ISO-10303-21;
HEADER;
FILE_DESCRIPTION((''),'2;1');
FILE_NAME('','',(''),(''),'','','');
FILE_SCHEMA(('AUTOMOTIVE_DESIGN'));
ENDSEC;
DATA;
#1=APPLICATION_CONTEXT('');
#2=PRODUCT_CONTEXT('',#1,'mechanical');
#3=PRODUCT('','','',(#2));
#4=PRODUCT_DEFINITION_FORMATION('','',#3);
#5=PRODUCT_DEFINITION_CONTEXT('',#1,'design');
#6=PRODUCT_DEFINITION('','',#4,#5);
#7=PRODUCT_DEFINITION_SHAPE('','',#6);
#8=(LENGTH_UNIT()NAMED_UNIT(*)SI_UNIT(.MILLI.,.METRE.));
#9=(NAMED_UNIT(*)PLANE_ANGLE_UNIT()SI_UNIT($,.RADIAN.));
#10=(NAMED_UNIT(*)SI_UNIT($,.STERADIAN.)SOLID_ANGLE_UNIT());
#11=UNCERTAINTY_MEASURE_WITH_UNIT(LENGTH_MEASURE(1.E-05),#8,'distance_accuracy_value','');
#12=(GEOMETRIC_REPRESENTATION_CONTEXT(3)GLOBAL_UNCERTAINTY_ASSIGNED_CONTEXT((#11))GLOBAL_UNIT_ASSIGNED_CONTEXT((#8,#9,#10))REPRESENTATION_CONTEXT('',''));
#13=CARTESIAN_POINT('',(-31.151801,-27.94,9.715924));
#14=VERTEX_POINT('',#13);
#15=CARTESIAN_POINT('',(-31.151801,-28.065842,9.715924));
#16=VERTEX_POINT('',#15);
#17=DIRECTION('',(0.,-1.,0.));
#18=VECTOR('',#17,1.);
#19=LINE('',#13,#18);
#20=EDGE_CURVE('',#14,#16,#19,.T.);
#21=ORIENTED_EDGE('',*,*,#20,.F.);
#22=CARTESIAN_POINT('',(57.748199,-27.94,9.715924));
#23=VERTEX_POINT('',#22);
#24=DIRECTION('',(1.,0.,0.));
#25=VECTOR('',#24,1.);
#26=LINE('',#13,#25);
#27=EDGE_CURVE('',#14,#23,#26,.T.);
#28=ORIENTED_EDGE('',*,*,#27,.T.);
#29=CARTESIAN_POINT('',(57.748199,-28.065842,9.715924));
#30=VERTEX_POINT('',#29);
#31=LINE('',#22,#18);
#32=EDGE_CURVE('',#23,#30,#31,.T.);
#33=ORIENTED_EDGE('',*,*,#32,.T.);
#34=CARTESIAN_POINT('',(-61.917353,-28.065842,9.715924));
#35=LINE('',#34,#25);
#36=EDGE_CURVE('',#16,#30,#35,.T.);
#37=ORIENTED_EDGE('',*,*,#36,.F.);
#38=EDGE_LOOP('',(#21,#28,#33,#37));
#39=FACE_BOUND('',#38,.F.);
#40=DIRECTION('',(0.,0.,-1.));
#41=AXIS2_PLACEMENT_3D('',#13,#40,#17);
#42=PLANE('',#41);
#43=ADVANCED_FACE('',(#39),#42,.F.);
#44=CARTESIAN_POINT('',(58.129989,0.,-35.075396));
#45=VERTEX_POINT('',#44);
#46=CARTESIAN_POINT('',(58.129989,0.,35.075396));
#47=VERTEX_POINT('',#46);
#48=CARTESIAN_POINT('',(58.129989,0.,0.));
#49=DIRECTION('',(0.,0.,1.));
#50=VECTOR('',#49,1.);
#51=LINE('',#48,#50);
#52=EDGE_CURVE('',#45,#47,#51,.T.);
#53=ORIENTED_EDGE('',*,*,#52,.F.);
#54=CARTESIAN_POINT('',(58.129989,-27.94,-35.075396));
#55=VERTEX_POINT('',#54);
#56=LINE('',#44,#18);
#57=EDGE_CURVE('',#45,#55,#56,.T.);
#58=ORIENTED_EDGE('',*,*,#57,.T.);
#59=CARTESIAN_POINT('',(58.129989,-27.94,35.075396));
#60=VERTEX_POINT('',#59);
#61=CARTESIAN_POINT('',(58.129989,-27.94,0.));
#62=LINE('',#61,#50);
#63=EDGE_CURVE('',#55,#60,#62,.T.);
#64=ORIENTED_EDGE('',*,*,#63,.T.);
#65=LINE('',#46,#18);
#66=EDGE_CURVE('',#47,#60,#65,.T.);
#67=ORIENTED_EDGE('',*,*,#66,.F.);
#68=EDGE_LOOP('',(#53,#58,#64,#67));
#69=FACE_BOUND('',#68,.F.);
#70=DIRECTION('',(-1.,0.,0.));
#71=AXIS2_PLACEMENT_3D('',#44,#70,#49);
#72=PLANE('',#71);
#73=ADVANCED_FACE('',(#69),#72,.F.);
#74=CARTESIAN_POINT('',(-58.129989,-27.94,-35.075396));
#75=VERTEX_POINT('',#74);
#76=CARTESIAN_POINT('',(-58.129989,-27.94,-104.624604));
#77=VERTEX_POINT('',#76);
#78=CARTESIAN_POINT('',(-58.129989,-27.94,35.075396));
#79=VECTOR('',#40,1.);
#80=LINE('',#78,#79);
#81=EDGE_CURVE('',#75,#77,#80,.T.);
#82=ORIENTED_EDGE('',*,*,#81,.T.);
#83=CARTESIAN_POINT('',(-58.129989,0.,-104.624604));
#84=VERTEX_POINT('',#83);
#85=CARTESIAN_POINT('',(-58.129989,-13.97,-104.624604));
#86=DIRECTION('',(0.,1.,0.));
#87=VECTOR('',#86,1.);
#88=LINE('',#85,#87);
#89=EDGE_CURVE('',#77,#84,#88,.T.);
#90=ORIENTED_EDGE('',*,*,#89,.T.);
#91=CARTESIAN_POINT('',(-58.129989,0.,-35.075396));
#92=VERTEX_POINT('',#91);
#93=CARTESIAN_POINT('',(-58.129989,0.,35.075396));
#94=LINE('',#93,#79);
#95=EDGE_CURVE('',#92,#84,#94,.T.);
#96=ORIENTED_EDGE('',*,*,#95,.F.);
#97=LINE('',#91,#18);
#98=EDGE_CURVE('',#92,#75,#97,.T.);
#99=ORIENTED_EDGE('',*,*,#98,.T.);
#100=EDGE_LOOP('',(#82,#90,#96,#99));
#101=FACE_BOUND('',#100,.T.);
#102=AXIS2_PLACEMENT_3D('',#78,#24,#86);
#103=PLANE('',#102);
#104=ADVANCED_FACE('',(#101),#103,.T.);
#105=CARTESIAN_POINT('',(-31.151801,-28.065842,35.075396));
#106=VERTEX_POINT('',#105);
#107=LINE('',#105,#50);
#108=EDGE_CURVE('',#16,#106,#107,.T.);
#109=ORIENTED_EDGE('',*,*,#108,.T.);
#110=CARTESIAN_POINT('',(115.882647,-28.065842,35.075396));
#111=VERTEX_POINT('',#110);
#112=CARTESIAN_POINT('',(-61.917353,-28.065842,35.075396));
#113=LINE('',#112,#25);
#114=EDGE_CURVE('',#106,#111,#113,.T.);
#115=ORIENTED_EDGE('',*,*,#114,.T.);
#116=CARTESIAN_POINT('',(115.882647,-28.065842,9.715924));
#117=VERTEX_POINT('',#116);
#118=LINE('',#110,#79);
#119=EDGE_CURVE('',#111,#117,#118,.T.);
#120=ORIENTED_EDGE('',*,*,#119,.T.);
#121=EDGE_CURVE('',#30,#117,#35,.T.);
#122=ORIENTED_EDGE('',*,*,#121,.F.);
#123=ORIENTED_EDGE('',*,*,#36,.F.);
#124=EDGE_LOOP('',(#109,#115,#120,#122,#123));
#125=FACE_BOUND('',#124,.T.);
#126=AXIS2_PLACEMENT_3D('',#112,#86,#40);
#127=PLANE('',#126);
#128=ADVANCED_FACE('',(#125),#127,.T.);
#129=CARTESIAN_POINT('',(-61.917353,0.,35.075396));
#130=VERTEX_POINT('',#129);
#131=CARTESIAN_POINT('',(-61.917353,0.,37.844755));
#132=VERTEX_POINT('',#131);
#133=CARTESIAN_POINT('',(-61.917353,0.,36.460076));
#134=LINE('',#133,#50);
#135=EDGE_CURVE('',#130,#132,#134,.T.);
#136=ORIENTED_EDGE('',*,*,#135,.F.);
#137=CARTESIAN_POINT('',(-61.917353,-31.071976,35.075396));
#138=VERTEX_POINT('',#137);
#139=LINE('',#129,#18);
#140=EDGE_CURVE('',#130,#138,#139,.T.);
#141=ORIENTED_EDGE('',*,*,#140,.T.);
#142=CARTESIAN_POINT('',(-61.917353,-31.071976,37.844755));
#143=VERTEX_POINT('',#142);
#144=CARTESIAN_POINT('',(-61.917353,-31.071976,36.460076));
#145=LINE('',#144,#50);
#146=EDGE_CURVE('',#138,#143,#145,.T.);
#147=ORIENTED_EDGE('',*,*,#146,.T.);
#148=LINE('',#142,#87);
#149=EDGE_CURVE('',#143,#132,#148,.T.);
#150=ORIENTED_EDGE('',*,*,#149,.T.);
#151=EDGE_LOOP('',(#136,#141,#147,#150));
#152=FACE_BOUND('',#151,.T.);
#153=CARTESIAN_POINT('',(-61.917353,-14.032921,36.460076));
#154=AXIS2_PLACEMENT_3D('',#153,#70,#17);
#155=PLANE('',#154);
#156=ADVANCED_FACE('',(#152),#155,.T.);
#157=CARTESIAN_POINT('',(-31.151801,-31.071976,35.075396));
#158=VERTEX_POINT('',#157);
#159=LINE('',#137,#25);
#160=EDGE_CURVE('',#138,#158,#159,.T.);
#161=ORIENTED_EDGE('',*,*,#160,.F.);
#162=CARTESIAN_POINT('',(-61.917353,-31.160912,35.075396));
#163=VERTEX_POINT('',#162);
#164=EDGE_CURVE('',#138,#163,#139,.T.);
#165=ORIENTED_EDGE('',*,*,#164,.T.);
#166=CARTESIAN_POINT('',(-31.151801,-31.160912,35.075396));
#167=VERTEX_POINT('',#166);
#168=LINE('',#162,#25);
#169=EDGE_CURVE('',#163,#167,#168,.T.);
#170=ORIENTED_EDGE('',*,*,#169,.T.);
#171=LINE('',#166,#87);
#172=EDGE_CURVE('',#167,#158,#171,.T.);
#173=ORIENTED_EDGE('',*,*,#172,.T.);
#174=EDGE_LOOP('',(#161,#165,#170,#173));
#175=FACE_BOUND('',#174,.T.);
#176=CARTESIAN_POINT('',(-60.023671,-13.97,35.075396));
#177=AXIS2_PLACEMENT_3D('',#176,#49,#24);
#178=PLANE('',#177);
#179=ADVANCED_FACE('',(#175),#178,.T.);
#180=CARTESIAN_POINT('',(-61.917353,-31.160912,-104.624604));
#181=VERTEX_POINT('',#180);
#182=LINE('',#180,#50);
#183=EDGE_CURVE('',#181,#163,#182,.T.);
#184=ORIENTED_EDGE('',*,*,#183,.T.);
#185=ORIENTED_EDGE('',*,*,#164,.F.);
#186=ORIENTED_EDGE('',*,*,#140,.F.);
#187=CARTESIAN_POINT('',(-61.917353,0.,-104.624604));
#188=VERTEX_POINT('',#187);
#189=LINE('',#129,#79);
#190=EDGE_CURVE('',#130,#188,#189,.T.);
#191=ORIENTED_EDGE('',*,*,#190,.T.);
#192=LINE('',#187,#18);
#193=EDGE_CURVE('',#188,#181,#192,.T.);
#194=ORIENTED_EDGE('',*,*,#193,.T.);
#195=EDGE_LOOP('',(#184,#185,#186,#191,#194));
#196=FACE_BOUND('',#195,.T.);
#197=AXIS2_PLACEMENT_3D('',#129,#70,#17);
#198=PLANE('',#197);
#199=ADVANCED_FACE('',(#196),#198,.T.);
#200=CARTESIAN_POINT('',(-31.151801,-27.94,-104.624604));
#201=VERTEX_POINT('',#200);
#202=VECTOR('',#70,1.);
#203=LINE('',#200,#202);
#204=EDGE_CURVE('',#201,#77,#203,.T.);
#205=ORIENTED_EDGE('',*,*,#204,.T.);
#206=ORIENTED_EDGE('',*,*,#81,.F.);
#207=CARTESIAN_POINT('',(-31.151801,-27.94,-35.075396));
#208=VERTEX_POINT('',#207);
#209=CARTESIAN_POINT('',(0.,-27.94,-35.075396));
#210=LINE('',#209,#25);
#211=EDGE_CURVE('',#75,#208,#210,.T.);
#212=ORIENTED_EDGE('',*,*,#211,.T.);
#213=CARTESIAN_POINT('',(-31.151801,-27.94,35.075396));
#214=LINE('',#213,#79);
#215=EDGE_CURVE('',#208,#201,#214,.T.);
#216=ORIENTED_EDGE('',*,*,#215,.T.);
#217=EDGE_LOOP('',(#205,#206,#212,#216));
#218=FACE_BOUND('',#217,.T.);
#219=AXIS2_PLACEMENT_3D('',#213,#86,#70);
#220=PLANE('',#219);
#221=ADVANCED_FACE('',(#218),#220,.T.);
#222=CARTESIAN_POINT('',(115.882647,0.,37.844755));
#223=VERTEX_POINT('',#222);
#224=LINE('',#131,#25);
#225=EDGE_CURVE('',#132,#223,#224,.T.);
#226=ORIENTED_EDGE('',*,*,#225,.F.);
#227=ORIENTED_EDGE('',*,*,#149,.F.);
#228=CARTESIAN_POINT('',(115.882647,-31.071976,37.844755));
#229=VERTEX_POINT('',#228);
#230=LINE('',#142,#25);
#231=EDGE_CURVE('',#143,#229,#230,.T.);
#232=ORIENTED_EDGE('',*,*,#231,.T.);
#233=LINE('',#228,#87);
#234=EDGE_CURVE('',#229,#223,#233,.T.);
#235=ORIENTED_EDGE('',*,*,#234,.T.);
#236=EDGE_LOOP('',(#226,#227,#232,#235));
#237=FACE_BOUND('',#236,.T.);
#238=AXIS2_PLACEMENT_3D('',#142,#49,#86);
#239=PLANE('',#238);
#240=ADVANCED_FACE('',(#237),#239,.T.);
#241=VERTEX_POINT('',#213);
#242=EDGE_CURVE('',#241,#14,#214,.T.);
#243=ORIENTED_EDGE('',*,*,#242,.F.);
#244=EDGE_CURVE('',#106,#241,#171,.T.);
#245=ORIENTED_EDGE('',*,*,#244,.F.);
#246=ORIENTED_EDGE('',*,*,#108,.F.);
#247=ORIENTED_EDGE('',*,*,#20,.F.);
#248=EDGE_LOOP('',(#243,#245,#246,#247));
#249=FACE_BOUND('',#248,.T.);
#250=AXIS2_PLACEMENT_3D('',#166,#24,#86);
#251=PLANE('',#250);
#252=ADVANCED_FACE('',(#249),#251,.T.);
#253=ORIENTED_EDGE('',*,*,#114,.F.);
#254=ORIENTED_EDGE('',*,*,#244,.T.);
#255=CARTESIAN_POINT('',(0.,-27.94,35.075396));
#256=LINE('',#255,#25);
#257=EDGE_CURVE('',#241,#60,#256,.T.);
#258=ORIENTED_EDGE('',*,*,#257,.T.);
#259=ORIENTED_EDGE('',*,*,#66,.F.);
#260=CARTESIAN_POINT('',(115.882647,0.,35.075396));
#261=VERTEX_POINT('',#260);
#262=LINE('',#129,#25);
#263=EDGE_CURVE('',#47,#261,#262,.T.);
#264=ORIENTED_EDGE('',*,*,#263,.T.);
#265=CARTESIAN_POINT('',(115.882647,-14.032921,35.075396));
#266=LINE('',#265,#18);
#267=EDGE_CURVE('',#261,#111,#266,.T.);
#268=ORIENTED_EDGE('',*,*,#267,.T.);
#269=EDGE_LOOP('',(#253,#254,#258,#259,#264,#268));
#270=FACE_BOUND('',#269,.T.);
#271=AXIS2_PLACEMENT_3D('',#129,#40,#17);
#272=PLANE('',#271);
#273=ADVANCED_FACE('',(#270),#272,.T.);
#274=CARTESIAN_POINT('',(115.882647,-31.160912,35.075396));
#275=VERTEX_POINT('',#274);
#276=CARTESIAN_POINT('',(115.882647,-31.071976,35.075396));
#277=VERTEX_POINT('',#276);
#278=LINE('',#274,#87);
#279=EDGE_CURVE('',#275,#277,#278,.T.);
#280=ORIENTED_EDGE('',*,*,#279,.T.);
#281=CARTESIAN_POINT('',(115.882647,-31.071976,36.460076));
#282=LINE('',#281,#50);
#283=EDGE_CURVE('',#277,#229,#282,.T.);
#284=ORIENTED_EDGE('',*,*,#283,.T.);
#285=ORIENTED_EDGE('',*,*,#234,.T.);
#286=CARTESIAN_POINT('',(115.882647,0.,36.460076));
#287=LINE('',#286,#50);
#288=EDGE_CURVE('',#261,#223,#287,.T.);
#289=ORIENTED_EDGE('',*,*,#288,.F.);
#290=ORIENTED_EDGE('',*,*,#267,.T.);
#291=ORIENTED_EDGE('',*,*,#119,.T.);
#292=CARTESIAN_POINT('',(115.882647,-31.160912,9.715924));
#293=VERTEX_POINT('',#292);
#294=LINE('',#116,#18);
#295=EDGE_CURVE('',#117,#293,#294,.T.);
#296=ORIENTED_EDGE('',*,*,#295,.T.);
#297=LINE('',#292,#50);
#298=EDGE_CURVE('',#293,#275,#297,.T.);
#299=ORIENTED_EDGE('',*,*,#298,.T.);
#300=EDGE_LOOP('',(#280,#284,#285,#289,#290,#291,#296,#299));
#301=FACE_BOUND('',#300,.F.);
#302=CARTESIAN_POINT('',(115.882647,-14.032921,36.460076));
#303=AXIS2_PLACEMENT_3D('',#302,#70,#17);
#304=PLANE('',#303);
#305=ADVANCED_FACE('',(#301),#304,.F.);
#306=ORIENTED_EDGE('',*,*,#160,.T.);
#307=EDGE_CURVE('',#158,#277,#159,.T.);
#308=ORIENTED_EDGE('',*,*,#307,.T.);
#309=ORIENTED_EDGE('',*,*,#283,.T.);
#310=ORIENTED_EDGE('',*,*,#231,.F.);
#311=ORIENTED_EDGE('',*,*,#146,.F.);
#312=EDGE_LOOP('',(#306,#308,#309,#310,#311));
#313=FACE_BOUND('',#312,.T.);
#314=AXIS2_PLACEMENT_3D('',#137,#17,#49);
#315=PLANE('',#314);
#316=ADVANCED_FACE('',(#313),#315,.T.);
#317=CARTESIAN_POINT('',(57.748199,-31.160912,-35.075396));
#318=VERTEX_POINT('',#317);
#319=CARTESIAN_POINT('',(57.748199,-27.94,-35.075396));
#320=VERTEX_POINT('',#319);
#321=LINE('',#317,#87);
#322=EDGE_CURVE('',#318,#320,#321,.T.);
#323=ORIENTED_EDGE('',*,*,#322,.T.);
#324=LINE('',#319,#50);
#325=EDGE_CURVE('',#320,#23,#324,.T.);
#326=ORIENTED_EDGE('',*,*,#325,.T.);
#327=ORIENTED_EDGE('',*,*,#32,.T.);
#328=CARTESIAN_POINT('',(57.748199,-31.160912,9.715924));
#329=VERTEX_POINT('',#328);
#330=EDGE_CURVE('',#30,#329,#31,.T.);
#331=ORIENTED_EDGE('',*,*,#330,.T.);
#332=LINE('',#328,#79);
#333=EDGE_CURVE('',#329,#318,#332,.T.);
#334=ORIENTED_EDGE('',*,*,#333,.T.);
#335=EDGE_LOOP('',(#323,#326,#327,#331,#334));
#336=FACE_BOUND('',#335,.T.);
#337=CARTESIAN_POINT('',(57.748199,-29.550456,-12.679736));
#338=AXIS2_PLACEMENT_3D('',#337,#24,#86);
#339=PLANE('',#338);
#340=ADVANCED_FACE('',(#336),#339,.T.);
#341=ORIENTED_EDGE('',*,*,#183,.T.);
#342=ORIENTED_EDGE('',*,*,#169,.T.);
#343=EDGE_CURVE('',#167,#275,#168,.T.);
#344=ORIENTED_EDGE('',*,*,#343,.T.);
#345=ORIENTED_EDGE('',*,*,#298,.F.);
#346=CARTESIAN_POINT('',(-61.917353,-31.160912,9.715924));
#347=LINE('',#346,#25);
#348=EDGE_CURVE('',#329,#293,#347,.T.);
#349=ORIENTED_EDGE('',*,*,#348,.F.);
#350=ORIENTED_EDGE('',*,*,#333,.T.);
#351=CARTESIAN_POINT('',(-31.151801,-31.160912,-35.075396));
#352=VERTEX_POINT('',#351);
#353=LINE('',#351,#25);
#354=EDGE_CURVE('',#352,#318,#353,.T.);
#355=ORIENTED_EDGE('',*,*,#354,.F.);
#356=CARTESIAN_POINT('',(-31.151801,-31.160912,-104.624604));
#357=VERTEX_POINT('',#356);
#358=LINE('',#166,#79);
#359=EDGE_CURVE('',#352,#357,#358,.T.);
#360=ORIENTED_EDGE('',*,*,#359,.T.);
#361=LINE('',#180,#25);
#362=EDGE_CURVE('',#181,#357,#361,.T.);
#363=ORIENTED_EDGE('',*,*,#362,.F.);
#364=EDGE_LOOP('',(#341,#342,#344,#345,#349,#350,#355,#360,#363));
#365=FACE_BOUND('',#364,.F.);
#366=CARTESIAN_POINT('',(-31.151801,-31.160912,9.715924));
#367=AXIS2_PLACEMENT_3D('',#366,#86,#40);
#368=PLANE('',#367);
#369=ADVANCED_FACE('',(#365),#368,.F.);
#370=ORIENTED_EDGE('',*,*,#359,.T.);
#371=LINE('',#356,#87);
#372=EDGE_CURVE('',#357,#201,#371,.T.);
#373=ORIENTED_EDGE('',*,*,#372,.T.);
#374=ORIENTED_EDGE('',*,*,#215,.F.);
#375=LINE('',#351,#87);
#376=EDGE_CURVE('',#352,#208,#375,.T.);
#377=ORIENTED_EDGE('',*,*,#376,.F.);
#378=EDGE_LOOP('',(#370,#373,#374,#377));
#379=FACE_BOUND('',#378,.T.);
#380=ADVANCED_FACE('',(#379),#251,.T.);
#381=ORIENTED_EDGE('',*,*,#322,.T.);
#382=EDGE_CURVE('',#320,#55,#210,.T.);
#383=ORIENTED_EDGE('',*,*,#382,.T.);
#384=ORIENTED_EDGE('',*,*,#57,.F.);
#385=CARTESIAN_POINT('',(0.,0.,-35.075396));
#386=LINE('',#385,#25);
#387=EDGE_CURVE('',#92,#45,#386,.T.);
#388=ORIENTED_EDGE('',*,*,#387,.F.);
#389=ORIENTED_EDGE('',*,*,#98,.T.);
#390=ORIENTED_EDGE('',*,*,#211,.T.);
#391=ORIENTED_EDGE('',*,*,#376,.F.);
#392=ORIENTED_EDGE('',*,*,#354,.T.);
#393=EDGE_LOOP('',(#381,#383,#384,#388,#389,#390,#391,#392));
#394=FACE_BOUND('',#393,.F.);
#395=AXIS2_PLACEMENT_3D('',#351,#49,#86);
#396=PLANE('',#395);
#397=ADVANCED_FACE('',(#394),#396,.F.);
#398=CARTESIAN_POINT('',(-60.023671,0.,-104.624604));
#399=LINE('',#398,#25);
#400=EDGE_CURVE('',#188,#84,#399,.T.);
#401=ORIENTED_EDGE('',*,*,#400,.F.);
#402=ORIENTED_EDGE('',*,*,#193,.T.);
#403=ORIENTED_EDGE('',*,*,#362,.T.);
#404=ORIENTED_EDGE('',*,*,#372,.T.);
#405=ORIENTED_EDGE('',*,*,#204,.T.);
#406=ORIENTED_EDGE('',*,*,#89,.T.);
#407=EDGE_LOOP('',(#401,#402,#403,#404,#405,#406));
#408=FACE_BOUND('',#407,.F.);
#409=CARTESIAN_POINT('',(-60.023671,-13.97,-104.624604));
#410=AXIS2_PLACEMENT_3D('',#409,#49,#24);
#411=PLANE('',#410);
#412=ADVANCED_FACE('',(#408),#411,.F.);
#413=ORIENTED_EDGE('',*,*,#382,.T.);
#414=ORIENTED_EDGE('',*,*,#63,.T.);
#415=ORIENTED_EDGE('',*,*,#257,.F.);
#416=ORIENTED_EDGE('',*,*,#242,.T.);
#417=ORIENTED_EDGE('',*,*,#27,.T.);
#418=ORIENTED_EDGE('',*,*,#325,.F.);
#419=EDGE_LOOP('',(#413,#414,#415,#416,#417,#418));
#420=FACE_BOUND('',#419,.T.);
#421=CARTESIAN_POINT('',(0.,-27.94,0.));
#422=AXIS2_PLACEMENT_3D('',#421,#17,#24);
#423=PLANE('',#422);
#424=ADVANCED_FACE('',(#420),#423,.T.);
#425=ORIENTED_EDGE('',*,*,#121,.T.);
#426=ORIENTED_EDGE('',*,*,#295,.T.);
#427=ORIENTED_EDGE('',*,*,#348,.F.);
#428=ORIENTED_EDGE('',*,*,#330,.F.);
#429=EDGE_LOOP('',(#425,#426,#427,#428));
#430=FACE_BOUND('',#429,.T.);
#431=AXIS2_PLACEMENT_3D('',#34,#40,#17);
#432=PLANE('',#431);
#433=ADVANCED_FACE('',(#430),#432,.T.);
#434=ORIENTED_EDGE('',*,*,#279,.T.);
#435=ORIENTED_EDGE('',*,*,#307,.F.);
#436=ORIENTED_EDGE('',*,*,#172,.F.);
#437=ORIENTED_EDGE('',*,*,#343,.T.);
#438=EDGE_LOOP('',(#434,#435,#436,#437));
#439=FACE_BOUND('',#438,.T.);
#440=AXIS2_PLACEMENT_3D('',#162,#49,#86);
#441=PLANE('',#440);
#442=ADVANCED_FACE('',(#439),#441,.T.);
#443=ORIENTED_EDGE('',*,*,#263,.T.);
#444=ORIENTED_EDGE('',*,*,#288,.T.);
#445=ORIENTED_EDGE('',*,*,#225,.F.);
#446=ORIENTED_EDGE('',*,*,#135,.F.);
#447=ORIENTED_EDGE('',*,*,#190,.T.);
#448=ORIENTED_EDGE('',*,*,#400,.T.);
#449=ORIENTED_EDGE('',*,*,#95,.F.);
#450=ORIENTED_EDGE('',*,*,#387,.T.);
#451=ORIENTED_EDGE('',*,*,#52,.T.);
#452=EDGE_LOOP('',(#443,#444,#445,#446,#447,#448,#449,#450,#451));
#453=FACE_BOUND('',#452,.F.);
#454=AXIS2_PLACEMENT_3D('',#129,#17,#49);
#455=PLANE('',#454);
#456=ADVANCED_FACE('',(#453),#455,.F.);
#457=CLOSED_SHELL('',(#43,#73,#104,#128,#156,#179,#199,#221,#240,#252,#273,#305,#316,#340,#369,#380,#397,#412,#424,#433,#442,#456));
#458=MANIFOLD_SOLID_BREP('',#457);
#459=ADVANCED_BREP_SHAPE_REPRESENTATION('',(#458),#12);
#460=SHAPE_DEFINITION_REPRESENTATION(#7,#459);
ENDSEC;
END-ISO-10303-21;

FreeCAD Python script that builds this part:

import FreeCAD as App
import Part
import Sketcher
Q = App.Units.Quantity


def add_polygon(sketch, points):
    """Adds a closed chain of lines whose ends are joined by coincident constraints."""
    first, n = sketch.GeometryCount, len(points)
    for a, b in zip(points, points[1:] + points[:1]):
        sketch.addGeometry(Part.LineSegment(App.Vector(*a, 0), App.Vector(*b, 0)), False)
    for i in range(n):
        sketch.addConstraint(Sketcher.Constraint("Coincident", first + i, 2, first + (i + 1) % n, 1))

doc = App.newDocument("Part")
body = doc.addObject("PartDesign::Body", "Body")

sketch1 = body.newObject("Sketcher::SketchObject", "Sketch")
sketch1.AttachmentSupport = (doc.getObject("XZ_Plane"), [""])
sketch1.MapMode = "FlatFace"
add_polygon(sketch1, [(-58, 35), (-58, -35), (58, -35), (58, 35)])
sketch1.addConstraint(Sketcher.Constraint("Vertical", 0))
sketch1.addConstraint(Sketcher.Constraint("Horizontal", 1))
sketch1.addConstraint(Sketcher.Constraint("Vertical", 2))
sketch1.addConstraint(Sketcher.Constraint("Horizontal", 3))
sketch1.addConstraint(Sketcher.Constraint("Symmetric", 0, 2, 2, 2, -1, 1))
sketch1.addConstraint(Sketcher.Constraint("DistanceX", 1, 1, 1, 2, Q("116.259977 mm")))
sketch1.addConstraint(Sketcher.Constraint("DistanceY", 0, 2, 0, 1, Q("70.150793 mm")))
pad1 = body.newObject("PartDesign::Pad", "Pad")
pad1.Profile = sketch1
pad1.Length = Q("1.1 in")

sketch2 = body.newObject("Sketcher::SketchObject", "Sketch001")
sketch2.AttachmentSupport = (doc.getObject("XY_Plane"), [""])
sketch2.MapMode = "FlatFace"
sketch2.AttachmentOffset = App.Placement(App.Vector(0, 0, 35.075396), App.Rotation())
add_polygon(sketch2, [(-61.9, 0), (-61.9, -31.2), (-31.2, -31.2), (-31.2, -27.9), (-58.1, -27.9), (-58.1, 0)])
sketch2.addConstraint(Sketcher.Constraint("Vertical", 0))
sketch2.addConstraint(Sketcher.Constraint("Horizontal", 1))
sketch2.addConstraint(Sketcher.Constraint("Vertical", 2))
sketch2.addConstraint(Sketcher.Constraint("Horizontal", 3))
sketch2.addConstraint(Sketcher.Constraint("Vertical", 4))
sketch2.addConstraint(Sketcher.Constraint("Horizontal", 5))
sketch2.addConstraint(Sketcher.Constraint("PointOnObject", 4, 2, -1))
sketch2.addConstraint(Sketcher.Constraint("DistanceY", 4, 1, 4, 2, Q("1.1 in")))
sketch2.addConstraint(Sketcher.Constraint("DistanceY", 0, 2, 0, 1, Q("31.160912 mm")))
sketch2.addConstraint(Sketcher.Constraint("DistanceX", 1, 2, -1, 1, Q("31.151801 mm")))
sketch2.addConstraint(Sketcher.Constraint("DistanceX", 1, 1, 1, 2, Q("30.765552 mm")))
sketch2.addConstraint(Sketcher.Constraint("DistanceX", 3, 2, 3, 1, Q("26.978187 mm")))
pad2 = body.newObject("PartDesign::Pad", "Pad001")
pad2.Profile = sketch2
pad2.Length = Q("5.5 in")
pad2.Reversed = True

sketch3 = body.newObject("Sketcher::SketchObject", "Sketch002")
sketch3.AttachmentSupport = (doc.getObject("YZ_Plane"), [""])
sketch3.MapMode = "FlatFace"
sketch3.AttachmentOffset = App.Placement(App.Vector(0, 0, -61.917353), App.Rotation())
add_polygon(sketch3, [(0, 37.84), (0, 35.08), (-28.07, 35.08), (-28.07, 9.72), (-31.16, 9.72), (-31.16, 35.08), (-31.07, 35.08), (-31.07, 37.84)])
sketch3.addConstraint(Sketcher.Constraint("Vertical", 0))
sketch3.addConstraint(Sketcher.Constraint("Horizontal", 1))
sketch3.addConstraint(Sketcher.Constraint("Vertical", 2))
sketch3.addConstraint(Sketcher.Constraint("Horizontal", 3))
sketch3.addConstraint(Sketcher.Constraint("Vertical", 4))
sketch3.addConstraint(Sketcher.Constraint("Horizontal", 5))
sketch3.addConstraint(Sketcher.Constraint("Vertical", 6))
sketch3.addConstraint(Sketcher.Constraint("Horizontal", 7))
sketch3.addConstraint(Sketcher.Constraint("PointOnObject", 0, 2, -2))
sketch3.addConstraint(Sketcher.Constraint("Horizontal", 1, 2, 4, 2))
sketch3.addConstraint(Sketcher.Constraint("DistanceX", 1, 2, 1, 1, Q("28.065842 mm")))
sketch3.addConstraint(Sketcher.Constraint("DistanceX", 3, 2, 3, 1, Q("3.09507 mm")))
sketch3.addConstraint(Sketcher.Constraint("DistanceY", 0, 2, 0, 1, Q("2.769358 mm")))
sketch3.addConstraint(Sketcher.Constraint("DistanceX", 5, 1, 5, 2, Q("0.088936 mm")))
sketch3.addConstraint(Sketcher.Constraint("DistanceY", 2, 2, 2, 1, Q("25.359472 mm")))
sketch3.addConstraint(Sketcher.Constraint("DistanceY", -1, 1, 0, 2, Q("35.075396 mm")))
pad3 = body.newObject("PartDesign::Pad", "Pad002")
pad3.Profile = sketch3
pad3.Length = Q("7 in")

sketch4 = body.newObject("Sketcher::SketchObject", "Sketch003")
sketch4.AttachmentSupport = (doc.getObject("YZ_Plane"), [""])
sketch4.MapMode = "FlatFace"
sketch4.AttachmentOffset = App.Placement(App.Vector(0, 0, -31.151801), App.Rotation())
add_polygon(sketch4, [(-31.2, 9.7), (-31.2, -35.1), (-27.9, -35.1), (-27.9, 9.7)])
sketch4.addConstraint(Sketcher.Constraint("Vertical", 0))
sketch4.addConstraint(Sketcher.Constraint("Horizontal", 1))
sketch4.addConstraint(Sketcher.Constraint("Vertical", 2))
sketch4.addConstraint(Sketcher.Constraint("Horizontal", 3))
sketch4.addConstraint(Sketcher.Constraint("DistanceX", 1, 2, -1, 1, Q("1.1 in")))
sketch4.addConstraint(Sketcher.Constraint("DistanceX", 1, 1, 1, 2, Q("3.220912 mm")))
sketch4.addConstraint(Sketcher.Constraint("DistanceY", 0, 2, 0, 1, Q("44.79132 mm")))
sketch4.addConstraint(Sketcher.Constraint("DistanceY", 0, 2, -1, 1, Q("35.075396 mm")))
pad4 = body.newObject("PartDesign::Pad", "Pad003")
pad4.Profile = sketch4
pad4.Length = Q("3.5 in")

doc.recompute()
